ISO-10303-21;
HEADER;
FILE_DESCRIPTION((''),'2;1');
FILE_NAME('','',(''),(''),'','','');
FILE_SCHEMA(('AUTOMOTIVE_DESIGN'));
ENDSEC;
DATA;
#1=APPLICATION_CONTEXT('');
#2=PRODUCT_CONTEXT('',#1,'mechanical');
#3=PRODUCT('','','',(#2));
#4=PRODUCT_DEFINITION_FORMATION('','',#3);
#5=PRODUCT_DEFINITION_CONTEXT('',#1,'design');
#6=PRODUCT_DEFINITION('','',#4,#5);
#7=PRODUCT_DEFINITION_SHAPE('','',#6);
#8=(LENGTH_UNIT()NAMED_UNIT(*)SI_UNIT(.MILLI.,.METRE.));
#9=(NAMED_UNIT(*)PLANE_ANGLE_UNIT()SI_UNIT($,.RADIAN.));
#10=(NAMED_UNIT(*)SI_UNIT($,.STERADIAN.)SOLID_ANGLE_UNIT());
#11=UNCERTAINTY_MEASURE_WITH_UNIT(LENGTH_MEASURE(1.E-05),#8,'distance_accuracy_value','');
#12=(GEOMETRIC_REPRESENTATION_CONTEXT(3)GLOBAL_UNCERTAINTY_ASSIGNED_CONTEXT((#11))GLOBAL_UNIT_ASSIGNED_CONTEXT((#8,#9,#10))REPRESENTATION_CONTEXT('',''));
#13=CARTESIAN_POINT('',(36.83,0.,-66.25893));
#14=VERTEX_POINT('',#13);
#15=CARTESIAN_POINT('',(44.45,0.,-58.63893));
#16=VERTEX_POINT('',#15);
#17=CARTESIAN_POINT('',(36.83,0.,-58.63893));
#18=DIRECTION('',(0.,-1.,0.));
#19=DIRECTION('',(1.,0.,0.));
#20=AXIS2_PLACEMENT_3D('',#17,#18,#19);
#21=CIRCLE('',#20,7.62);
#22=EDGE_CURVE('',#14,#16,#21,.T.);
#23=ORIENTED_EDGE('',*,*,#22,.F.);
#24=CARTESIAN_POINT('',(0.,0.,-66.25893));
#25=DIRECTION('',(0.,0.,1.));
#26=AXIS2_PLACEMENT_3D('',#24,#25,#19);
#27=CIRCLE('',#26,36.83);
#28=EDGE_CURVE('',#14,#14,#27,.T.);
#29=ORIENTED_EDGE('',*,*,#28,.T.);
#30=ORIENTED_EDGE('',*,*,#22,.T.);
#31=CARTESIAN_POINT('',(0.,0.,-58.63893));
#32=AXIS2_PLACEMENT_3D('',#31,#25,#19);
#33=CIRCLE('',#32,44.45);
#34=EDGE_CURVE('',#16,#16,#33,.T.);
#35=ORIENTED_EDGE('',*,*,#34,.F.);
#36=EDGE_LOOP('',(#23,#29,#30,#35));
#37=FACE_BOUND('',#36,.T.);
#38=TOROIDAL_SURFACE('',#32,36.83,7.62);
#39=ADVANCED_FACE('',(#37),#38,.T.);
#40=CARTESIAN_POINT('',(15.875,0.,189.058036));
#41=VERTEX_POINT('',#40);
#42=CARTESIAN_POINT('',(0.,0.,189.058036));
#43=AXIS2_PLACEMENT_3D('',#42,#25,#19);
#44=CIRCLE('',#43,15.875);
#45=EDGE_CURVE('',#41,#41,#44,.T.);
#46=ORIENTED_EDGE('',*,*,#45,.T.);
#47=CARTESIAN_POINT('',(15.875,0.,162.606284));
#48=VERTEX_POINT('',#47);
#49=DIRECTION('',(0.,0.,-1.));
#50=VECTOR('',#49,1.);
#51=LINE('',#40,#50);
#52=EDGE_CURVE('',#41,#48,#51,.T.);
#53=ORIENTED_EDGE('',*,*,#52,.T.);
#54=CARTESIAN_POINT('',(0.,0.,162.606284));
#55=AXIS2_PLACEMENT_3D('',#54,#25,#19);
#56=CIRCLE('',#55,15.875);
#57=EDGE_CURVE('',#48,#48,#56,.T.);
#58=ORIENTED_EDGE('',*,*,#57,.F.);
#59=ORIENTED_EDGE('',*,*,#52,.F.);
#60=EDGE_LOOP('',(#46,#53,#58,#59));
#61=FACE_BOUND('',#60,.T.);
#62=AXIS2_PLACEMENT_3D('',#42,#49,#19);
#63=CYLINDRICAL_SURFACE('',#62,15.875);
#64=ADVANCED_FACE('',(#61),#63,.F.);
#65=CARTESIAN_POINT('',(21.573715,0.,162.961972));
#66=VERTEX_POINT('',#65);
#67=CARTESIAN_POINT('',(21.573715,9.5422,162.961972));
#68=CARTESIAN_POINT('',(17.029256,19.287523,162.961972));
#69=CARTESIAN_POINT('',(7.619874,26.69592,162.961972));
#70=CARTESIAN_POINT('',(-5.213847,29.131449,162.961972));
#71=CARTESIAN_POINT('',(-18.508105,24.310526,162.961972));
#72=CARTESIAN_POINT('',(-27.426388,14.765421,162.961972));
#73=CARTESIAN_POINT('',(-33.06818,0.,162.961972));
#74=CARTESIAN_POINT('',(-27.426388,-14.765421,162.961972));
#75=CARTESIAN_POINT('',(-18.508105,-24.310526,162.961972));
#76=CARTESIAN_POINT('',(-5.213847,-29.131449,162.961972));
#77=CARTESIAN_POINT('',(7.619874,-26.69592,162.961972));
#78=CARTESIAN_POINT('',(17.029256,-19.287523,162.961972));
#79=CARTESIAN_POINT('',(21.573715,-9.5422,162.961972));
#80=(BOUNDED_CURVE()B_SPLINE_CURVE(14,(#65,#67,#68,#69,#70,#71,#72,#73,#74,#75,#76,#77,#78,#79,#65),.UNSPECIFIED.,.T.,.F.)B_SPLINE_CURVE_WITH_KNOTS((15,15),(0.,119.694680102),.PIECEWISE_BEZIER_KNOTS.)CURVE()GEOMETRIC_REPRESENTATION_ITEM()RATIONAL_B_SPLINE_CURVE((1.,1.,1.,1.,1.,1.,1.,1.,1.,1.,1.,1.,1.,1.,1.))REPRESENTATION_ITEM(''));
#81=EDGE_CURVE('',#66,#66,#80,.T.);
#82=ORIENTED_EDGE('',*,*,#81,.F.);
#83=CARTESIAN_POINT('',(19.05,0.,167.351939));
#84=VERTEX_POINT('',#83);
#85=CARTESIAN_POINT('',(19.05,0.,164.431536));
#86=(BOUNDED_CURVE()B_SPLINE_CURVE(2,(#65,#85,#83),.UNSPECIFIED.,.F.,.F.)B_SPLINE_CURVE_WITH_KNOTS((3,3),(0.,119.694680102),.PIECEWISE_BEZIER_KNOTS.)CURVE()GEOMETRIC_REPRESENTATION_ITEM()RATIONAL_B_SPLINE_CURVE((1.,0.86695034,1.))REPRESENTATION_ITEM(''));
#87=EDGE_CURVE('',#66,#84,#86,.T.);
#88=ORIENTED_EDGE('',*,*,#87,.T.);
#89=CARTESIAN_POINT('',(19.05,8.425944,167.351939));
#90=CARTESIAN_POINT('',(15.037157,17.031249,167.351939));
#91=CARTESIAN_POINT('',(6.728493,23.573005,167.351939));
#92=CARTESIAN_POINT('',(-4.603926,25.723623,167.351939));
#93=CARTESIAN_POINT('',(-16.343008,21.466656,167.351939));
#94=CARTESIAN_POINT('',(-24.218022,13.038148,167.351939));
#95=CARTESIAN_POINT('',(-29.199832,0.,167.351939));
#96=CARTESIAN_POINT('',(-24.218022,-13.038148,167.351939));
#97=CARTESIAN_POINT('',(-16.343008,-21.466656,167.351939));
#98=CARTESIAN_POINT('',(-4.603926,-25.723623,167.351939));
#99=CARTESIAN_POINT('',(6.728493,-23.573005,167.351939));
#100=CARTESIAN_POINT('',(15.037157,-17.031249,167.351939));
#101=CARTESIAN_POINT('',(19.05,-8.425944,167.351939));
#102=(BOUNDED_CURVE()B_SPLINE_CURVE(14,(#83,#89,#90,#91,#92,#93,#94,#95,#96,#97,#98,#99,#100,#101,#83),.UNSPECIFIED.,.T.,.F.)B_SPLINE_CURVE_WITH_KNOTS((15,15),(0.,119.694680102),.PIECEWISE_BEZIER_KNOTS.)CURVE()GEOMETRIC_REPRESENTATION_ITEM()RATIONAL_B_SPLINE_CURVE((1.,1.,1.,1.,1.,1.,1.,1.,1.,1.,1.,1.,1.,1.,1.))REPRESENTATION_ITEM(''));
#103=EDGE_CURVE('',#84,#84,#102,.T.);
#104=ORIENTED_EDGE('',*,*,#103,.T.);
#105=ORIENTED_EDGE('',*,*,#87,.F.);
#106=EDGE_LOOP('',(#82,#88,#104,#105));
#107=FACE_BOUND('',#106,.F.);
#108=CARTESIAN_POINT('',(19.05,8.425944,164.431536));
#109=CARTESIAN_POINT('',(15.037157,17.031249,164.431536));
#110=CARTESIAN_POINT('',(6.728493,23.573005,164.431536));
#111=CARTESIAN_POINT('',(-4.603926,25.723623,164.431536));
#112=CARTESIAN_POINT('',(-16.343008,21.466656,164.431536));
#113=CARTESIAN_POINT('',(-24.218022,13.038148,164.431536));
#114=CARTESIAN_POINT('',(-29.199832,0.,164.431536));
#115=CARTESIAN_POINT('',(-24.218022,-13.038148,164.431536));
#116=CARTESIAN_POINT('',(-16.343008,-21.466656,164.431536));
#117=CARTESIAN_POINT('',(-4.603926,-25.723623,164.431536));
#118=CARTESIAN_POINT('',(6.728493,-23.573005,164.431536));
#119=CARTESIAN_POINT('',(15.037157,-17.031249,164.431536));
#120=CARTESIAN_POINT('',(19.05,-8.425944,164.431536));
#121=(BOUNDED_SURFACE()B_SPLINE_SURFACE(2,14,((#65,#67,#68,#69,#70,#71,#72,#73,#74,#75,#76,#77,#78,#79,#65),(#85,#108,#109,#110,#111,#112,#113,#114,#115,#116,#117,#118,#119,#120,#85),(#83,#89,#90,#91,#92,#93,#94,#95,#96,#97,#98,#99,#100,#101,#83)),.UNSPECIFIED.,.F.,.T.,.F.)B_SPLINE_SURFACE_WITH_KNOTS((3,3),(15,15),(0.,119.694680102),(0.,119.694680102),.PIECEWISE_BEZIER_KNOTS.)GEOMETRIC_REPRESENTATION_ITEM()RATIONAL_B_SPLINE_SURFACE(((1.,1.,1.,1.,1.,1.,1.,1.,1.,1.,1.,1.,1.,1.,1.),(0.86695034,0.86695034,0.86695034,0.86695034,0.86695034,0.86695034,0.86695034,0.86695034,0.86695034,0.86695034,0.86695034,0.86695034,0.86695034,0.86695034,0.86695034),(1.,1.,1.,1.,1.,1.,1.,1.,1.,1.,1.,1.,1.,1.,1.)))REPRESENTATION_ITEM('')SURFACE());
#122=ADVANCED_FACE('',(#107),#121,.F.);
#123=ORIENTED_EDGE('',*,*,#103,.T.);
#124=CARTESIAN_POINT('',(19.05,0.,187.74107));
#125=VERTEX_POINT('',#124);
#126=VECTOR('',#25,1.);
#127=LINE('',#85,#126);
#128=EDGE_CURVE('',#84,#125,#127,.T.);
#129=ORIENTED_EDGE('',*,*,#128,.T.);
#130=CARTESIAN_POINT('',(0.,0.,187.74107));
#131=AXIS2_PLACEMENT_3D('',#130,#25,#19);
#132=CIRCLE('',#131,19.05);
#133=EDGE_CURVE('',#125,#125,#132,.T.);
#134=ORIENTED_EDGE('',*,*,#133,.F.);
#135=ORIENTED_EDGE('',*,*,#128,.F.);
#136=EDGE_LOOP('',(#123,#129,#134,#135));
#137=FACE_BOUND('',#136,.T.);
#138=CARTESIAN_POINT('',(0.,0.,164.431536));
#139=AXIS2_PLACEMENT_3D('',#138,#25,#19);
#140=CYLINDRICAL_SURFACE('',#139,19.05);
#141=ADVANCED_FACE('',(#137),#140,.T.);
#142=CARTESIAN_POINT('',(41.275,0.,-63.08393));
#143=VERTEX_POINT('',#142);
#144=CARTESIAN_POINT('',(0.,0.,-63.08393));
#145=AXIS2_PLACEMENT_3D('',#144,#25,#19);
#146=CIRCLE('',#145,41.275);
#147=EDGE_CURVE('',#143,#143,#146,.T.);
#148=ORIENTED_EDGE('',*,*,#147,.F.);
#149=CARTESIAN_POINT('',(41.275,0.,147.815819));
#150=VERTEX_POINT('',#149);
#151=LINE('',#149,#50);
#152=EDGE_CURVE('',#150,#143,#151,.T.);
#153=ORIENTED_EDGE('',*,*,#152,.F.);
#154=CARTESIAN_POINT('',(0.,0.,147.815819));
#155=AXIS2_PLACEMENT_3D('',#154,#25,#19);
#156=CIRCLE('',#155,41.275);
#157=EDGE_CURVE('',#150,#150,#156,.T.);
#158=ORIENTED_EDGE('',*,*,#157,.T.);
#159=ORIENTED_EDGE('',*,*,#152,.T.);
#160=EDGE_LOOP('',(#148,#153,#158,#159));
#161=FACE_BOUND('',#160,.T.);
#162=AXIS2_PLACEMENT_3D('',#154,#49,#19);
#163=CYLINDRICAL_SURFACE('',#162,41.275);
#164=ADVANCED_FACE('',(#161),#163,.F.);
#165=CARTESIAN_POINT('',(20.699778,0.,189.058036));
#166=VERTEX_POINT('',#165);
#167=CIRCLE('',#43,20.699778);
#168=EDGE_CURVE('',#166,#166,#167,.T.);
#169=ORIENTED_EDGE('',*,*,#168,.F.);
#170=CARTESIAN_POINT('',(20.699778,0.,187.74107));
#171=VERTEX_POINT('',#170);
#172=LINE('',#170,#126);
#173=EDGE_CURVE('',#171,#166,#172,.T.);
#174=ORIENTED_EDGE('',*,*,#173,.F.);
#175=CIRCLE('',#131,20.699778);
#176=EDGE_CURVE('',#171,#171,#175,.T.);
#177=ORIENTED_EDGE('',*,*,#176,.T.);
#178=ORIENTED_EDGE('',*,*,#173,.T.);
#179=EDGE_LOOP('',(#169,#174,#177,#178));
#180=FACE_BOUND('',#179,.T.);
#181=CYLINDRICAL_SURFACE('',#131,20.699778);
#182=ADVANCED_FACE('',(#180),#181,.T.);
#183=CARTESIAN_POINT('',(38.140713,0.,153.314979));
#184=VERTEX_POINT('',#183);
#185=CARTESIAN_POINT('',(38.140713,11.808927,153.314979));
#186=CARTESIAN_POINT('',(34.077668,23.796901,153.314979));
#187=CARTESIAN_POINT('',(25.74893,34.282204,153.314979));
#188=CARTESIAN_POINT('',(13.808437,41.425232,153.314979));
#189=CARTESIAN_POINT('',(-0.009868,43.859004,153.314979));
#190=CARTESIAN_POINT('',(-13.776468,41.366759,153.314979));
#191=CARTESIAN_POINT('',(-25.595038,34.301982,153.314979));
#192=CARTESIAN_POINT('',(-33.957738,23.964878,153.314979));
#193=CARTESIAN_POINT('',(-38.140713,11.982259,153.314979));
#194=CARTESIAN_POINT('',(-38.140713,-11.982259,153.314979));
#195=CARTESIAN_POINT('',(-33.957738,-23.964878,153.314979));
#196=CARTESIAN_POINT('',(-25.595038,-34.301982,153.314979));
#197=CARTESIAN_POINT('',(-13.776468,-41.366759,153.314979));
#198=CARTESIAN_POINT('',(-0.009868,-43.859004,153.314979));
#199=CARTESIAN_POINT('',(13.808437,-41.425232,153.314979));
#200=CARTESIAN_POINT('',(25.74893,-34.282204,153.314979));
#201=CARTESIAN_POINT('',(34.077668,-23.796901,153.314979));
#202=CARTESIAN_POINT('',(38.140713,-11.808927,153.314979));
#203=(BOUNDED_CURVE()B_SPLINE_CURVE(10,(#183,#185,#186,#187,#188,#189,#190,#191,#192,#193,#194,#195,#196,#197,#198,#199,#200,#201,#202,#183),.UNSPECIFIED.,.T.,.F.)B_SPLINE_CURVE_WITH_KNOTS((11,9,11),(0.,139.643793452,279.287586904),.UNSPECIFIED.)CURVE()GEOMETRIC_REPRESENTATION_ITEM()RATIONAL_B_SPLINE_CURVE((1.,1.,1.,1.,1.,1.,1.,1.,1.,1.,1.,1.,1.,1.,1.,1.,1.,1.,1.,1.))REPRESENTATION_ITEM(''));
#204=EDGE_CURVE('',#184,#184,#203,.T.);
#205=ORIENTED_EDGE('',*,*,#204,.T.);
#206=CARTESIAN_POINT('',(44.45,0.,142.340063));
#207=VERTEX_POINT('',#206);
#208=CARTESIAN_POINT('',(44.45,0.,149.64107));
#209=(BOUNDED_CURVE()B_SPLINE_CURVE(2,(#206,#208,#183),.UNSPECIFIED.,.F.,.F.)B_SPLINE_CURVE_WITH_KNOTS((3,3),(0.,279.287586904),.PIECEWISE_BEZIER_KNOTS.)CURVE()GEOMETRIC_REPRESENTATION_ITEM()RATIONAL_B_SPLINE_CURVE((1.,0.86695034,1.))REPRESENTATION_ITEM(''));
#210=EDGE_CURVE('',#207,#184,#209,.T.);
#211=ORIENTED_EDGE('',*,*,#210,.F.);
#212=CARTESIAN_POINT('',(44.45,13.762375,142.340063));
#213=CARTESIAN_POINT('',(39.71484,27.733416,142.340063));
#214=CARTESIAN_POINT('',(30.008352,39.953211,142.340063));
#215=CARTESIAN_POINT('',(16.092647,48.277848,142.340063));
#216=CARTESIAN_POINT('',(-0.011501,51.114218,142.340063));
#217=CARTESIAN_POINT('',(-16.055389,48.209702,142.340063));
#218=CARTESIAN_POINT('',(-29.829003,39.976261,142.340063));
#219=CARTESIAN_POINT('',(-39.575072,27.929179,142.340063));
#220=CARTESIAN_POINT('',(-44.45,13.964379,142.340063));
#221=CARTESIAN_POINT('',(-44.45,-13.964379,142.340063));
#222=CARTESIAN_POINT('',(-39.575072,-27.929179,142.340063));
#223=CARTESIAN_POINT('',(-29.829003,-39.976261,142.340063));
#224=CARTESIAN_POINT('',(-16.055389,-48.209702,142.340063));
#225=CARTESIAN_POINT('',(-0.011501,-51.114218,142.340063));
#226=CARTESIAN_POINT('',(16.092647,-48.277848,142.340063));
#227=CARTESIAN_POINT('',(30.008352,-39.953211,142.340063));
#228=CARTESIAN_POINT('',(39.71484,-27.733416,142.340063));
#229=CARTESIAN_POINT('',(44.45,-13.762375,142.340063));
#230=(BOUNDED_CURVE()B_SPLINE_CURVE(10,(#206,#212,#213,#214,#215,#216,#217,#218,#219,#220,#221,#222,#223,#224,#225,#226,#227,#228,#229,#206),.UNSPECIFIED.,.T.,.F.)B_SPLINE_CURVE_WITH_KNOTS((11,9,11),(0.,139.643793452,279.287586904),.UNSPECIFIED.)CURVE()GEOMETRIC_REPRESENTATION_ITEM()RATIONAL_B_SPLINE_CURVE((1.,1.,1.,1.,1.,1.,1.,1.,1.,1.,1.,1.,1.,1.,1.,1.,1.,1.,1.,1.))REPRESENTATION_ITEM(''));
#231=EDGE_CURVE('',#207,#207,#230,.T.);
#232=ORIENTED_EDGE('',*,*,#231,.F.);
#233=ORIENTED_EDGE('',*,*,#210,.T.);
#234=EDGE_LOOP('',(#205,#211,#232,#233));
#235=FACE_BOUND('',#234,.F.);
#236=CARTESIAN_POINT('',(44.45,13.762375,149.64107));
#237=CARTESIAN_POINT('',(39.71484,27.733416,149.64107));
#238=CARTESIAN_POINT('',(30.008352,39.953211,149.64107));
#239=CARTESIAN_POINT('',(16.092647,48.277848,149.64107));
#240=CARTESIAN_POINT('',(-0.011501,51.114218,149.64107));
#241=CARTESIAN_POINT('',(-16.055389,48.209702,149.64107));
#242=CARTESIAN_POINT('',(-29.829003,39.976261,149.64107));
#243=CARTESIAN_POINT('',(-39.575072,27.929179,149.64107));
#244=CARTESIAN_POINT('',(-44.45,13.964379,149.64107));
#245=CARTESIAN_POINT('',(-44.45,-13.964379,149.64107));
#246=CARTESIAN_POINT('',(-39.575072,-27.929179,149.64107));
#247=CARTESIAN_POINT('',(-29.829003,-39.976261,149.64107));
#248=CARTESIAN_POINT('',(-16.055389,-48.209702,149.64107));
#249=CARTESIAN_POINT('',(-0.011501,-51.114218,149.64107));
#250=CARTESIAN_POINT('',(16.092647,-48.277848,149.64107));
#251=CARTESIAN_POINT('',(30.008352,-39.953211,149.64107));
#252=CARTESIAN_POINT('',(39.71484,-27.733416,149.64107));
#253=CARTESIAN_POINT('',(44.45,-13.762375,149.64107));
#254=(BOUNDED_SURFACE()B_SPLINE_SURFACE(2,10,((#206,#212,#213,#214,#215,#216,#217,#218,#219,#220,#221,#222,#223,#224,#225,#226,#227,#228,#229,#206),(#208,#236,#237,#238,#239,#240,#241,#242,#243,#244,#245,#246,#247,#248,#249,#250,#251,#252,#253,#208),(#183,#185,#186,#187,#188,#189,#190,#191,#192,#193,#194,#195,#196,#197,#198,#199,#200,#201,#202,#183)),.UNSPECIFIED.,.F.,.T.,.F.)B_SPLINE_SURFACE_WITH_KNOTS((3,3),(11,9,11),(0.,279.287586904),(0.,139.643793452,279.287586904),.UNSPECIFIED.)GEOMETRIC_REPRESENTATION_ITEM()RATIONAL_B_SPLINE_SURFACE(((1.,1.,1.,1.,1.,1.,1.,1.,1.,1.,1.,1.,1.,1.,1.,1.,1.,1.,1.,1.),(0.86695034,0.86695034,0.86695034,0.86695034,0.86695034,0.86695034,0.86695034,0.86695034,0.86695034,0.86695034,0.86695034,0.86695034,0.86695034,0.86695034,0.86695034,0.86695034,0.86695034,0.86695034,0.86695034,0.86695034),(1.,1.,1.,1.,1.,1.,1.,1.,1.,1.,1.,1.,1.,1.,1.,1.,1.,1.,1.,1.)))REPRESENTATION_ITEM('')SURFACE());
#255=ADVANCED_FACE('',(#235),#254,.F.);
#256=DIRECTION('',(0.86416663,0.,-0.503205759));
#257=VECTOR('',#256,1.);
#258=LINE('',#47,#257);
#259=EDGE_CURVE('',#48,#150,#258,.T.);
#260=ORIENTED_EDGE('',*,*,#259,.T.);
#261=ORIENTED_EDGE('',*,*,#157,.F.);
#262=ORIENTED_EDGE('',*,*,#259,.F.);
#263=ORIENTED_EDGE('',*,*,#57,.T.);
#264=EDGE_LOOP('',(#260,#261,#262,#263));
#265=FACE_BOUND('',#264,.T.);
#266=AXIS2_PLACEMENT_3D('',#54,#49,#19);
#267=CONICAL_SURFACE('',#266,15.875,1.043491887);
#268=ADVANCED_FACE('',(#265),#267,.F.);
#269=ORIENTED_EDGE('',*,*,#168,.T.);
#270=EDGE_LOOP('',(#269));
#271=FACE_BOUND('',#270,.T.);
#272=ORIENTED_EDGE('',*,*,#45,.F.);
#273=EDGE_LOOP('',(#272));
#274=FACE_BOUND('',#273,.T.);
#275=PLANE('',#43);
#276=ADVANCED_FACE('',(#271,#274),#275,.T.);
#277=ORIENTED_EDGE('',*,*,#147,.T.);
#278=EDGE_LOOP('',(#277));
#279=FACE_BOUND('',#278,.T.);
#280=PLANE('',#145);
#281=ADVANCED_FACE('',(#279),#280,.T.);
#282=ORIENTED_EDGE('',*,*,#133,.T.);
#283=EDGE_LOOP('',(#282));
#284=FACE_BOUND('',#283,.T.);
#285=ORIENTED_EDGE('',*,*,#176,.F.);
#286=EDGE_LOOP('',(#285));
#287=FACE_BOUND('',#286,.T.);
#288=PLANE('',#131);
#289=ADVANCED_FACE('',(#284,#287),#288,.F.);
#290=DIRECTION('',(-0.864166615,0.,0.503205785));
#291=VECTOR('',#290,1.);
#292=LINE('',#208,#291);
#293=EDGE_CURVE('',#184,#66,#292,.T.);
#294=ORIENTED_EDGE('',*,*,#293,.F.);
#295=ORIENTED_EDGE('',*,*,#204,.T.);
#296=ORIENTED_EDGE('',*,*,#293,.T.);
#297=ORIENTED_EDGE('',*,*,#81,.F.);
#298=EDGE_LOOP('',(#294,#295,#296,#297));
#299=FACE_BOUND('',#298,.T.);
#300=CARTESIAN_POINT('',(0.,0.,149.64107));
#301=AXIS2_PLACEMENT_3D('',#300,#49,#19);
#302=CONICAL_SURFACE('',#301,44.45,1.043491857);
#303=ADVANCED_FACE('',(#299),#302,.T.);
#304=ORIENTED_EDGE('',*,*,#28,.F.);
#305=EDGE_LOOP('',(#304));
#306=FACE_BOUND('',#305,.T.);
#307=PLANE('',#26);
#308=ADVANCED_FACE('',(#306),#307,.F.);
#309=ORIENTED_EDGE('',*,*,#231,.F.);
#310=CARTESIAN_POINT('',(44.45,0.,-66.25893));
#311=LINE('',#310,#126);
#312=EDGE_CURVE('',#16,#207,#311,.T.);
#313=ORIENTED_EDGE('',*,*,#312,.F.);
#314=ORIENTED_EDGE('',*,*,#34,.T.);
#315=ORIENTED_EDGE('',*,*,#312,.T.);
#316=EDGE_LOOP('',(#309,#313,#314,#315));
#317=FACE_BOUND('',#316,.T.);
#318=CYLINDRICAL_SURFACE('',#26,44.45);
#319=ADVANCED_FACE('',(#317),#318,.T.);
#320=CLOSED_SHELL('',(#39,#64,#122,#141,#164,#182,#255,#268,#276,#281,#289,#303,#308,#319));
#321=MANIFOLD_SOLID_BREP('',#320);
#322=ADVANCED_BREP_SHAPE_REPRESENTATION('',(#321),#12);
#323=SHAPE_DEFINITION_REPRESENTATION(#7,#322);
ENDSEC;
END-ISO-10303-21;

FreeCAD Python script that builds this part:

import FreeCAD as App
import Part
import Sketcher

V = App.Vector
Q = App.Units.Quantity


def edges_at(feature, points):
    """Names of the edges that pass closest to the given points."""
    edges = feature.Shape.Edges
    near = lambda p: min(range(len(edges)), key=lambda i: edges[i].distToShape(Part.Vertex(*p))[0])
    return sorted({f"Edge{near(p) + 1}" for p in points})

doc = App.newDocument("Part")
params = doc.addObject("Spreadsheet::Sheet", "Params")
for row, (alias, value) in enumerate([
    ("sketch1_height", "8.5 in"),
    ("sketch1_width", "1.75 in"),
    ("sketch1_width2", "1.625 in"),
    ("sketch1_height2", "0.125 in"),
    ("revolution_angle", "360 deg"),
    ("fillet_radius", "0.3 in"),
    ("fillet2_radius", "0.5 in"),
    ("fillet3_radius", "0.2 in"),
], start=1):
    params.set(f"A{row}", alias)
    params.set(f"B{row}", "=" + value)
    params.setAlias(f"B{row}", alias)

body = doc.addObject("PartDesign::Body", "Body")

sketch1 = body.newObject("Sketcher::SketchObject", "Sketch")
sketch1.AttachmentSupport = (doc.getObject("XZ_Plane"), [""])
sketch1.MapMode = "FlatFace"
sketch1.addGeometry(Part.LineSegment(V(0, -63.08393, 0), V(0, -66.25893, 0)), False)
sketch1.addGeometry(Part.LineSegment(V(0, -66.25893, 0), V(44.45, -66.25893, 0)), False)
sketch1.addGeometry(Part.LineSegment(V(44.45, -66.25893, 0), V(44.45, 149.64107, 0)), False)
sketch1.addGeometry(Part.LineSegment(V(44.45, 149.64107, 0), V(19.05, 164.431536, 0)), False)
sketch1.addGeometry(Part.LineSegment(V(19.05, 164.431536, 0), V(19.05, 187.74107, 0)), False)
sketch1.addGeometry(Part.LineSegment(V(19.05, 187.74107, 0), V(20.699778, 187.74107, 0)), False)
sketch1.addGeometry(Part.LineSegment(V(20.699778, 187.74107, 0), V(20.699778, 189.058036, 0)), False)
sketch1.addGeometry(Part.LineSegment(V(20.699778, 189.058036, 0), V(15.875, 189.058036, 0)), False)
sketch1.addGeometry(Part.LineSegment(V(15.875, 189.058036, 0), V(15.875, 162.606284, 0)), False)
sketch1.addGeometry(Part.LineSegment(V(15.875, 162.606284, 0), V(41.275, 147.815819, 0)), False)
sketch1.addGeometry(Part.LineSegment(V(41.275, 147.815819, 0), V(41.275, -63.08393, 0)), False)
sketch1.addGeometry(Part.LineSegment(V(41.275, -63.08393, 0), V(0, -63.08393, 0)), False)
sketch1.addConstraint(Sketcher.Constraint("Coincident", 0, 2, 1, 1))
sketch1.addConstraint(Sketcher.Constraint("Coincident", 1, 2, 2, 1))
sketch1.addConstraint(Sketcher.Constraint("Coincident", 2, 2, 3, 1))
sketch1.addConstraint(Sketcher.Constraint("Coincident", 3, 2, 4, 1))
sketch1.addConstraint(Sketcher.Constraint("Coincident", 4, 2, 5, 1))
sketch1.addConstraint(Sketcher.Constraint("Coincident", 5, 2, 6, 1))
sketch1.addConstraint(Sketcher.Constraint("Coincident", 6, 2, 7, 1))
sketch1.addConstraint(Sketcher.Constraint("Coincident", 7, 2, 8, 1))
sketch1.addConstraint(Sketcher.Constraint("Coincident", 8, 2, 9, 1))
sketch1.addConstraint(Sketcher.Constraint("Coincident", 9, 2, 10, 1))
sketch1.addConstraint(Sketcher.Constraint("Coincident", 10, 2, 11, 1))
sketch1.addConstraint(Sketcher.Constraint("Coincident", 11, 2, 0, 1))
sketch1.addConstraint(Sketcher.Constraint("Vertical", 0))
sketch1.addConstraint(Sketcher.Constraint("Horizontal", 1))
sketch1.addConstraint(Sketcher.Constraint("Vertical", 2))
sketch1.addConstraint(Sketcher.Constraint("Vertical", 4))
sketch1.addConstraint(Sketcher.Constraint("Horizontal", 5))
sketch1.addConstraint(Sketcher.Constraint("Vertical", 6))
sketch1.addConstraint(Sketcher.Constraint("Horizontal", 7))
sketch1.addConstraint(Sketcher.Constraint("Vertical", 8))
sketch1.addConstraint(Sketcher.Constraint("Vertical", 10))
sketch1.addConstraint(Sketcher.Constraint("Horizontal", 11))
sketch1.addConstraint(Sketcher.Constraint("PointOnObject", 0, 2, -2))
sketch1.addConstraint(Sketcher.Constraint("Parallel", 3, 9))
sketch1.addConstraint(Sketcher.Constraint("Equal", 3, 9))
sketch1.addConstraint(Sketcher.Constraint("DistanceY", 2, 1, 2, 2, Q("8.5 in")))
sketch1.addConstraint(Sketcher.Constraint("DistanceX", 3, 2, 2, 2, Q("1 in")))
sketch1.addConstraint(Sketcher.Constraint("DistanceY", 0, 2, 4, 2, Q("10 in")))
sketch1.addConstraint(Sketcher.Constraint("DistanceX", 1, 1, 1, 2, Q("1.75 in")))
sketch1.addConstraint(Sketcher.Constraint("DistanceX", 11, 2, 11, 1, Q("1.625 in")))
sketch1.addConstraint(Sketcher.Constraint("DistanceY", 0, 2, 0, 1, Q("0.125 in")))
sketch1.addConstraint(Sketcher.Constraint("DistanceY", 8, 2, 8, 1, 26.451752))
sketch1.addConstraint(Sketcher.Constraint("DistanceY", 10, 2, 10, 1, 210.899749))
sketch1.addConstraint(Sketcher.Constraint("Distance", 3, 29.39248))
sketch1.addConstraint(Sketcher.Constraint("DistanceX", 5, 1, 5, 2, 1.649778))
sketch1.addConstraint(Sketcher.Constraint("DistanceY", 0, 2, -1, 1, 66.25893))
sketch1.setExpression("Constraints[25]", "Params.sketch1_height")
sketch1.setExpression("Constraints[28]", "Params.sketch1_width")
sketch1.setExpression("Constraints[29]", "Params.sketch1_width2")
sketch1.setExpression("Constraints[30]", "Params.sketch1_height2")
revolution = body.newObject("PartDesign::Revolution", "Revolution")
revolution.Profile = sketch1
revolution.ReferenceAxis = (sketch1, ["V_Axis"])
revolution.setExpression("Angle", "Params.revolution_angle")
doc.recompute()

fillet = body.newObject("PartDesign::Fillet", "Fillet")
fillet.Base = (revolution, edges_at(revolution, [(-44.45, 0, -66.259)]))
fillet.setExpression("Radius", "Params.fillet_radius")
doc.recompute()

fillet2 = body.newObject("PartDesign::Fillet", "Fillet001")
fillet2.Base = (fillet, edges_at(fillet, [(-44.45, 0, 149.641)]))
fillet2.setExpression("Radius", "Params.fillet2_radius")
doc.recompute()

fillet3 = body.newObject("PartDesign::Fillet", "Fillet002")
fillet3.Base = (fillet2, edges_at(fillet2, [(-19.05, 0, 164.432)]))
fillet3.setExpression("Radius", "Params.fillet3_radius")

doc.recompute()
